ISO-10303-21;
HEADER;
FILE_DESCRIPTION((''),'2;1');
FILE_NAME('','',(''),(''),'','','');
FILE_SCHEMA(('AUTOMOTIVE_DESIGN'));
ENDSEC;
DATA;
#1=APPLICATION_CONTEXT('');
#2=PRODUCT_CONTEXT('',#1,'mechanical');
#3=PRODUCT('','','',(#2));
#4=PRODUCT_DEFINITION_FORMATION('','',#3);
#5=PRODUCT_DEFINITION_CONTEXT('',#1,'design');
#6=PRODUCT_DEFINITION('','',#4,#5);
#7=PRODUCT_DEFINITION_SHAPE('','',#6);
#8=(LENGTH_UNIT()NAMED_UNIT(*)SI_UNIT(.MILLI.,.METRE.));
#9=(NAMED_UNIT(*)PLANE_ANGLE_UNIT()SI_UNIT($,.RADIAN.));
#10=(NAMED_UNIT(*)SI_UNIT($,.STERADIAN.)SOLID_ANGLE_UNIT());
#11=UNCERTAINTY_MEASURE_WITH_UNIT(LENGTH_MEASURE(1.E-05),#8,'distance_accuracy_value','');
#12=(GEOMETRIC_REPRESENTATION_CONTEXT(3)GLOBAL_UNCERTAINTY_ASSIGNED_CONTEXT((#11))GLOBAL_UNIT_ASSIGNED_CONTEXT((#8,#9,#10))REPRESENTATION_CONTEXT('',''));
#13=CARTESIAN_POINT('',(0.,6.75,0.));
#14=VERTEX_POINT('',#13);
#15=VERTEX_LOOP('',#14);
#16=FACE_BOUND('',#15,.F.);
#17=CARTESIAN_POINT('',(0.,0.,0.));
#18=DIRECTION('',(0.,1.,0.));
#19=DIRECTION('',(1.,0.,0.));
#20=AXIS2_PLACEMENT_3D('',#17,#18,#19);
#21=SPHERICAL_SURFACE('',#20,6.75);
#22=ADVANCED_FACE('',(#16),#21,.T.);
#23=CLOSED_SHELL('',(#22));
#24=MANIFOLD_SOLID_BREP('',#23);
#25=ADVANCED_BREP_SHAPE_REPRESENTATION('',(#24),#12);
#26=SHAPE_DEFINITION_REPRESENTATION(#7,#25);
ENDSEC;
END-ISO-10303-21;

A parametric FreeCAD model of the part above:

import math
import FreeCAD as App
import Part
import Sketcher
from FreeCAD import Vector

doc = App.newDocument("Part")
body = doc.addObject("PartDesign::Body", "Body")

# Sketch on XY plane
sketch1 = body.newObject("Sketcher::SketchObject", "Sketch")
sketch1.AttachmentSupport = (doc.getObject("XY_Plane"), [""])
sketch1.MapMode = "FlatFace"
sketch1.addGeometry(Part.LineSegment(Vector(0, 7, 0), Vector(0, -7, 0)), False)
sketch1.addGeometry(Part.ArcOfCircle(Part.Circle(Vector(0, 0, 0), Vector(0, 0, 1), 7), math.radians(-90), math.radians(90)), False)
sketch1.addConstraint(Sketcher.Constraint("Coincident", 0, 1, 1, 2))
sketch1.addConstraint(Sketcher.Constraint("Coincident", 1, 1, 0, 2))
sketch1.addConstraint(Sketcher.Constraint("Vertical", 0))
sketch1.addConstraint(Sketcher.Constraint("Coincident", 1, 3, -1, 1))
sketch1.addConstraint(Sketcher.Constraint("PointOnObject", 0, 1, -2))
sketch1.addConstraint(Sketcher.Constraint("Radius", 1, 6.75))
revolution = body.newObject("PartDesign::Revolution", "Revolution")
revolution.Profile = sketch1
revolution.ReferenceAxis = (sketch1, ["V_Axis"])
revolution.Angle = 360

doc.recompute()
